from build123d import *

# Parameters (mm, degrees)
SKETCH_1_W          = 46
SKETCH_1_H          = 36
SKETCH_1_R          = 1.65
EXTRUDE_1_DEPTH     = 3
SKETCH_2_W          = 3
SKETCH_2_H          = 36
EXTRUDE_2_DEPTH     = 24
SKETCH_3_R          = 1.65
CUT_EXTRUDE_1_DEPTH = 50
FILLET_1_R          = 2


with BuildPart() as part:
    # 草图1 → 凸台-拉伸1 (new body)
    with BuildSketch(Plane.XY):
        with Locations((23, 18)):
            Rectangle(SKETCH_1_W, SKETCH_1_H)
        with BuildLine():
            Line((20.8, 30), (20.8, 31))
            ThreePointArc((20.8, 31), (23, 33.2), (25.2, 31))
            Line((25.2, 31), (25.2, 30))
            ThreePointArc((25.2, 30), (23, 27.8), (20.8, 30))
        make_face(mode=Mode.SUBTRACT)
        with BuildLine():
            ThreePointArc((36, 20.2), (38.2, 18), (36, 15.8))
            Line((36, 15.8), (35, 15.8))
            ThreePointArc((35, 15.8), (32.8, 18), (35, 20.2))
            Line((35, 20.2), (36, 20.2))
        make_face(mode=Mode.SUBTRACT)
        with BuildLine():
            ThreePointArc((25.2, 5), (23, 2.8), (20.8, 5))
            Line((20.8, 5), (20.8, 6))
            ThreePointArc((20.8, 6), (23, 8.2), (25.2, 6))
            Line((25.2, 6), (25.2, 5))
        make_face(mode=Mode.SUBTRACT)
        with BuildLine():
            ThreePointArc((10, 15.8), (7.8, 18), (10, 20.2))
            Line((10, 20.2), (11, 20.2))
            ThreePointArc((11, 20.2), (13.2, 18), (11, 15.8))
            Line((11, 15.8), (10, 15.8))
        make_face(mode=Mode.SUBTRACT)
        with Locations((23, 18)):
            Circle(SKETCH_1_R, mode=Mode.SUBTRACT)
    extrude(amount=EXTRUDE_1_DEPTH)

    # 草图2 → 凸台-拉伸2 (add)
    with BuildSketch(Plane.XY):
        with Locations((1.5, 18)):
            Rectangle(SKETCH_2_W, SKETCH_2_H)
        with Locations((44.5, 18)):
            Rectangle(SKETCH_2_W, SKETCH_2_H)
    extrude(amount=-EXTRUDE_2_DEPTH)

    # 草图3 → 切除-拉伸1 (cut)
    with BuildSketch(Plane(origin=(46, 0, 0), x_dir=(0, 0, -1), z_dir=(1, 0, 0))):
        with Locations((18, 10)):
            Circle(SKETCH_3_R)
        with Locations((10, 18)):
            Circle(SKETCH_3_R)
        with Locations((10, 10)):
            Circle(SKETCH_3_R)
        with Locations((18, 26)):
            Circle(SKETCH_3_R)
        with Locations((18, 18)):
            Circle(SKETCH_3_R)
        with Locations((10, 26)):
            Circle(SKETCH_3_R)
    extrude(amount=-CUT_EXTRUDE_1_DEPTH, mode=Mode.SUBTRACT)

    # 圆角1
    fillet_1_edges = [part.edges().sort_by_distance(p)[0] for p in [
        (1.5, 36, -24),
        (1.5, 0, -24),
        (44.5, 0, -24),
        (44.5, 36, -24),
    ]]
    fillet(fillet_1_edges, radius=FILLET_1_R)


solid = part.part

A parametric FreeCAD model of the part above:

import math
import FreeCAD as App
import Part
import Sketcher

V = App.Vector
Q = App.Units.Quantity


def edges_at(feature, points):
    """Names of the edges that pass closest to the given points."""
    edges = feature.Shape.Edges
    near = lambda p: min(range(len(edges)), key=lambda i: edges[i].distToShape(Part.Vertex(*p))[0])
    return sorted({f"Edge{near(p) + 1}" for p in points})


def add_polygon(sketch, points):
    """Adds a closed chain of lines whose ends are joined by coincident constraints."""
    first, n = sketch.GeometryCount, len(points)
    for a, b in zip(points, points[1:] + points[:1]):
        sketch.addGeometry(Part.LineSegment(App.Vector(*a, 0), App.Vector(*b, 0)), False)
    for i in range(n):
        sketch.addConstraint(Sketcher.Constraint("Coincident", first + i, 2, first + (i + 1) % n, 1))

doc = App.newDocument("Part")
body = doc.addObject("PartDesign::Body", "Body")

# Sketch on XY plane
sketch1 = body.newObject("Sketcher::SketchObject", "Sketch")
sketch1.AttachmentSupport = (doc.getObject("XY_Plane"), [""])
sketch1.MapMode = "FlatFace"
add_polygon(sketch1, [(0, 36), (0, 0), (46, 0), (46, 36)])  # lines 0-3
sketch1.addGeometry(Part.LineSegment(V(25.2, 6, 0), V(25.2, 5, 0)), False)  # 4
sketch1.addGeometry(Part.ArcOfCircle(Part.Circle(V(23, 5, 0), V(0, 0, 1), 2.2), math.radians(180), math.radians(360)), False)  # 5
sketch1.addGeometry(Part.LineSegment(V(20.8, 5, 0), V(20.8, 6, 0)), False)  # 6
sketch1.addGeometry(Part.ArcOfCircle(Part.Circle(V(23, 6, 0), V(0, 0, 1), 2.2), math.radians(0), math.radians(180)), False)  # 7
sketch1.addGeometry(Part.LineSegment(V(11, 15.8, 0), V(10, 15.8, 0)), False)  # 8
sketch1.addGeometry(Part.ArcOfCircle(Part.Circle(V(10, 18, 0), V(0, 0, 1), 2.2), math.radians(90), math.radians(270)), False)  # 9
sketch1.addGeometry(Part.LineSegment(V(10, 20.2, 0), V(11, 20.2, 0)), False)  # 10
sketch1.addGeometry(Part.ArcOfCircle(Part.Circle(V(11, 18, 0), V(0, 0, 1), 2.2), math.radians(-90), math.radians(90)), False)  # 11
sketch1.addGeometry(Part.Circle(V(23, 18, 0), V(0, 0, 1), 1.6), False)  # 12
sketch1.addGeometry(Part.LineSegment(V(35, 20.2, 0), V(36, 20.2, 0)), False)  # 13
sketch1.addGeometry(Part.ArcOfCircle(Part.Circle(V(36, 18, 0), V(0, 0, 1), 2.2), math.radians(-90), math.radians(90)), False)  # 14
sketch1.addGeometry(Part.LineSegment(V(36, 15.8, 0), V(35, 15.8, 0)), False)  # 15
sketch1.addGeometry(Part.ArcOfCircle(Part.Circle(V(35, 18, 0), V(0, 0, 1), 2.2), math.radians(90), math.radians(270)), False)  # 16
sketch1.addGeometry(Part.ArcOfCircle(Part.Circle(V(23, 30, 0), V(0, 0, 1), 2.2), math.radians(180), math.radians(360)), False)  # 17
sketch1.addGeometry(Part.LineSegment(V(20.8, 30, 0), V(20.8, 31, 0)), False)  # 18
sketch1.addGeometry(Part.ArcOfCircle(Part.Circle(V(23, 31, 0), V(0, 0, 1), 2.2), math.radians(0), math.radians(180)), False)  # 19
sketch1.addGeometry(Part.LineSegment(V(25.2, 31, 0), V(25.2, 30, 0)), False)  # 20
sketch1.addConstraint([
    Sketcher.Constraint("Tangent", 4, 2, 5, 2),
    Sketcher.Constraint("Tangent", 5, 1, 6, 1),
    Sketcher.Constraint("Tangent", 6, 2, 7, 2),
    Sketcher.Constraint("Tangent", 7, 1, 4, 1),
    Sketcher.Constraint("Tangent", 8, 2, 9, 2),
    Sketcher.Constraint("Tangent", 9, 1, 10, 1),
    Sketcher.Constraint("Tangent", 10, 2, 11, 2),
    Sketcher.Constraint("Tangent", 11, 1, 8, 1),
    Sketcher.Constraint("Tangent", 13, 2, 14, 2),
    Sketcher.Constraint("Tangent", 14, 1, 15, 1),
    Sketcher.Constraint("Tangent", 15, 2, 16, 2),
    Sketcher.Constraint("Tangent", 16, 1, 13, 1),
    Sketcher.Constraint("Tangent", 17, 1, 18, 1),
    Sketcher.Constraint("Tangent", 18, 2, 19, 2),
    Sketcher.Constraint("Tangent", 19, 1, 20, 1),
    Sketcher.Constraint("Tangent", 20, 2, 17, 2),
    Sketcher.Constraint("Vertical", 0),
    Sketcher.Constraint("Horizontal", 1),
    Sketcher.Constraint("Vertical", 2),
    Sketcher.Constraint("Horizontal", 3),
    Sketcher.Constraint("Vertical", 4),
    Sketcher.Constraint("Vertical", 6),
    Sketcher.Constraint("Horizontal", 8),
    Sketcher.Constraint("Horizontal", 10),
    Sketcher.Constraint("Horizontal", 13),
    Sketcher.Constraint("Horizontal", 15),
    Sketcher.Constraint("Vertical", 18),
    Sketcher.Constraint("Vertical", 20),
    Sketcher.Constraint("Coincident", 0, 2, -1, 1),
    Sketcher.Constraint("Equal", 7, 9),
    Sketcher.Constraint("Equal", 11, 14),
    Sketcher.Constraint("Equal", 16, 17),
    Sketcher.Constraint("Horizontal", 11, 3, 12, 3),
    Sketcher.Constraint("Horizontal", 12, 3, 14, 3),
    Sketcher.Constraint("Vertical", 7, 3, 12, 3),
    Sketcher.Constraint("Vertical", 12, 3, 17, 3),
    Sketcher.Constraint("Equal", 10, 13),
    Sketcher.Constraint("Equal", 15, 4),
    Sketcher.Constraint("Equal", 6, 18),
    Sketcher.Constraint("Diameter", 12, Q("3.3 mm")),
    Sketcher.Constraint("Radius", 5, Q("2.2 mm")),
    Sketcher.Constraint("DistanceX", 1, 1, 1, 2, Q("46 mm")),
    Sketcher.Constraint("DistanceX", 8, 2, 8, 1, Q("1 mm")),
    Sketcher.Constraint("DistanceY", 0, 2, 0, 1, Q("36 mm")),
    Sketcher.Constraint("DistanceX", -1, 1, 5, 3, Q("23 mm")),
    Sketcher.Constraint("DistanceY", -1, 1, 5, 3, Q("5 mm")),
    Sketcher.Constraint("DistanceX", -1, 1, 9, 3, Q("10 mm")),
    Sketcher.Constraint("DistanceY", -1, 1, 9, 3, Q("18 mm")),
    Sketcher.Constraint("DistanceX", -1, 1, 14, 3, Q("36 mm")),
    Sketcher.Constraint("DistanceY", -1, 1, 17, 3, Q("30 mm")),
])
pad1 = body.newObject("PartDesign::Pad", "Pad")
pad1.Profile = sketch1
pad1.Length = 3

# Sketch on XY plane
sketch2 = body.newObject("Sketcher::SketchObject", "Sketch001")
sketch2.AttachmentSupport = (doc.getObject("XY_Plane"), [""])
sketch2.MapMode = "FlatFace"
add_polygon(sketch2, [(0, 36), (0, 0), (3, 0), (3, 36)])  # lines 0-3
add_polygon(sketch2, [(43, 36), (43, 0), (46, 0), (46, 36)])  # lines 4-7
sketch2.addConstraint([
    Sketcher.Constraint("Vertical", 0),
    Sketcher.Constraint("Horizontal", 1),
    Sketcher.Constraint("Vertical", 2),
    Sketcher.Constraint("Horizontal", 3),
    Sketcher.Constraint("Vertical", 4),
    Sketcher.Constraint("Horizontal", 5),
    Sketcher.Constraint("Vertical", 6),
    Sketcher.Constraint("Horizontal", 7),
    Sketcher.Constraint("Coincident", 0, 2, -1, 1),
    Sketcher.Constraint("PointOnObject", 4, 2, -1),
    Sketcher.Constraint("Horizontal", 3, 2, 6, 2),
    Sketcher.Constraint("Equal", 3, 5),
    Sketcher.Constraint("DistanceX", 1, 1, 1, 2, Q("3 mm")),
    Sketcher.Constraint("DistanceY", 0, 2, 0, 1, Q("36 mm")),
    Sketcher.Constraint("DistanceX", -1, 1, 4, 2, Q("43 mm")),
])
pad2 = body.newObject("PartDesign::Pad", "Pad001")
pad2.Profile = sketch2
pad2.Length = 24
pad2.Reversed = True

# Sketch on YZ plane
sketch3 = body.newObject("Sketcher::SketchObject", "Sketch002")
sketch3.AttachmentSupport = (doc.getObject("YZ_Plane"), [""])
sketch3.MapMode = "FlatFace"
sketch3.AttachmentOffset = App.Placement(V(0, 0, 46), App.Rotation())
sketch3.addGeometry([
    Part.Circle(V(10, -18, 0), V(0, 0, 1), 1.6),  # 0
    Part.Circle(V(18, -10, 0), V(0, 0, 1), 1.6),  # 1
    Part.Circle(V(10, -10, 0), V(0, 0, 1), 1.6),  # 2
    Part.Circle(V(26, -18, 0), V(0, 0, 1), 1.6),  # 3
    Part.Circle(V(18, -18, 0), V(0, 0, 1), 1.6),  # 4
    Part.Circle(V(26, -10, 0), V(0, 0, 1), 1.6),  # 5
], False)
sketch3.addConstraint([
    Sketcher.Constraint("Equal", 0, 1),
    Sketcher.Constraint("Equal", 1, 2),
    Sketcher.Constraint("Equal", 2, 3),
    Sketcher.Constraint("Equal", 3, 4),
    Sketcher.Constraint("Equal", 4, 5),
    Sketcher.Constraint("Horizontal", 1, 3, 2, 3),
    Sketcher.Constraint("Horizontal", 0, 3, 3, 3),
    Sketcher.Constraint("Horizontal", 3, 3, 4, 3),
    Sketcher.Constraint("Horizontal", 2, 3, 5, 3),
    Sketcher.Constraint("Vertical", 0, 3, 2, 3),
    Sketcher.Constraint("Vertical", 1, 3, 4, 3),
    Sketcher.Constraint("Vertical", 3, 3, 5, 3),
    Sketcher.Constraint("Diameter", 0, Q("3.3 mm")),
    Sketcher.Constraint("DistanceX", -1, 1, 0, 3, Q("10 mm")),
    Sketcher.Constraint("DistanceY", 0, 3, -1, 1, Q("18 mm")),
    Sketcher.Constraint("DistanceX", -1, 1, 1, 3, Q("18 mm")),
    Sketcher.Constraint("DistanceY", 1, 3, -1, 1, Q("10 mm")),
    Sketcher.Constraint("DistanceX", -1, 1, 3, 3, Q("26 mm")),
])
pocket1 = body.newObject("PartDesign::Pocket", "Pocket")
pocket1.Profile = sketch3
pocket1.Length = 50
doc.recompute()

fillet = body.newObject("PartDesign::Fillet", "Fillet")
fillet.Base = (pocket1, edges_at(pocket1, [
    (1.5, 36, -24),
    (1.5, 0, -24),
    (44.5, 0, -24),
    (44.5, 36, -24),
]))
fillet.Radius = 2

doc.recompute()
